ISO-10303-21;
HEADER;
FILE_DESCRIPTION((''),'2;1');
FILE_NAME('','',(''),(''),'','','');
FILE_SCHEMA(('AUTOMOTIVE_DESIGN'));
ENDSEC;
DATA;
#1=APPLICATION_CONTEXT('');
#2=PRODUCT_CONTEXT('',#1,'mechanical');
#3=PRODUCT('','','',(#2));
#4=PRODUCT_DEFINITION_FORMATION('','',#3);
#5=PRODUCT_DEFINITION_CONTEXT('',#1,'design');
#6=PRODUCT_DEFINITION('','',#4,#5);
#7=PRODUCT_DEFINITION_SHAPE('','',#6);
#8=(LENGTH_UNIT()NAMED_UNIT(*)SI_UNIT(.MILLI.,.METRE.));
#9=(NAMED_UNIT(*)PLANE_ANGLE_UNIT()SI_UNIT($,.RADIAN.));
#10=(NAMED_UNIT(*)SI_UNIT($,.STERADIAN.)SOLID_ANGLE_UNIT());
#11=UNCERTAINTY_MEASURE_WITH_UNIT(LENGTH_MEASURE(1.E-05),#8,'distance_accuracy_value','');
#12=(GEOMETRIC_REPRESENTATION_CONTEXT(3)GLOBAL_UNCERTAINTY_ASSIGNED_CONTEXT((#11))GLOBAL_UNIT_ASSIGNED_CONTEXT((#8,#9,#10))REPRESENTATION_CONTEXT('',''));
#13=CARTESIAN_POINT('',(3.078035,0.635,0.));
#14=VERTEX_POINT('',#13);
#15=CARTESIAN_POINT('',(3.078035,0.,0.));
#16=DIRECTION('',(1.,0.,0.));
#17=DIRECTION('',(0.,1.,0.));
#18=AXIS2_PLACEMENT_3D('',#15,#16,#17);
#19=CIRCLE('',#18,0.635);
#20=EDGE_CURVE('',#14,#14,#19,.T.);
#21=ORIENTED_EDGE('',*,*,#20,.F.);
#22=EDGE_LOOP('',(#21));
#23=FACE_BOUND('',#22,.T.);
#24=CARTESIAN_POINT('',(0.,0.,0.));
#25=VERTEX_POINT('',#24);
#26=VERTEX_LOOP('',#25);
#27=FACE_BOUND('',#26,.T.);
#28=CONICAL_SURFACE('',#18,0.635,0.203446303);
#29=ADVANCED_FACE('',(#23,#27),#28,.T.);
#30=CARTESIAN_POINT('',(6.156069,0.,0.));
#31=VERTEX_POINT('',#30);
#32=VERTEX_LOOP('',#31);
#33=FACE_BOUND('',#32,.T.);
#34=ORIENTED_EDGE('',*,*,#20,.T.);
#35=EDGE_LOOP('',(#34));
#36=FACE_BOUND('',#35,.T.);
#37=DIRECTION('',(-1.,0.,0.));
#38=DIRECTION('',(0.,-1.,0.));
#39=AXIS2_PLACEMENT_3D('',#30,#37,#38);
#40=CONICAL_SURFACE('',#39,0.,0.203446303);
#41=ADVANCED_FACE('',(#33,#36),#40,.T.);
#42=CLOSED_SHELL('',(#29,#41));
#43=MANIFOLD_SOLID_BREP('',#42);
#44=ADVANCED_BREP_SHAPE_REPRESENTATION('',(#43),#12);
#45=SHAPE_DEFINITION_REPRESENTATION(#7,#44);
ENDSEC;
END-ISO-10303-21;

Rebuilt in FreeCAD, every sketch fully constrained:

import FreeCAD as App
import Part
import Sketcher
from FreeCAD import Vector
Q = App.Units.Quantity

doc = App.newDocument("Part")
body = doc.addObject("PartDesign::Body", "Body")

# Sketch on XY plane
sketch1 = body.newObject("Sketcher::SketchObject", "Sketch")
sketch1.AttachmentSupport = (doc.getObject("XY_Plane"), [""])
sketch1.MapMode = "FlatFace"
sketch1.addGeometry([
    Part.LineSegment(Vector(3.1, 0.6, 0), Vector(0, 0, 0)),
    Part.LineSegment(Vector(0, 0, 0), Vector(6.2, 0, 0)),
    Part.LineSegment(Vector(6.2, 0, 0), Vector(3.1, 0.6, 0)),
], False)
sketch1.addConstraint([
    Sketcher.Constraint("Coincident", 0, 2, 1, 1),
    Sketcher.Constraint("Coincident", 1, 2, 2, 1),
    Sketcher.Constraint("Coincident", 2, 2, 0, 1),
    Sketcher.Constraint("Horizontal", 1),
    Sketcher.Constraint("Coincident", 0, 2, -1, 1),
    Sketcher.Constraint("Equal", 0, 2),
    Sketcher.Constraint("DistanceY", -1, 1, 2, 2, Q("0.635 mm")),
    Sketcher.Constraint("DistanceX", 1, 1, 1, 2, Q("6.156069 mm")),
])
revolution = body.newObject("PartDesign::Revolution", "Revolution")
revolution.Profile = sketch1
revolution.ReferenceAxis = (sketch1, ["H_Axis"])
revolution.Angle = 360

doc.recompute()
